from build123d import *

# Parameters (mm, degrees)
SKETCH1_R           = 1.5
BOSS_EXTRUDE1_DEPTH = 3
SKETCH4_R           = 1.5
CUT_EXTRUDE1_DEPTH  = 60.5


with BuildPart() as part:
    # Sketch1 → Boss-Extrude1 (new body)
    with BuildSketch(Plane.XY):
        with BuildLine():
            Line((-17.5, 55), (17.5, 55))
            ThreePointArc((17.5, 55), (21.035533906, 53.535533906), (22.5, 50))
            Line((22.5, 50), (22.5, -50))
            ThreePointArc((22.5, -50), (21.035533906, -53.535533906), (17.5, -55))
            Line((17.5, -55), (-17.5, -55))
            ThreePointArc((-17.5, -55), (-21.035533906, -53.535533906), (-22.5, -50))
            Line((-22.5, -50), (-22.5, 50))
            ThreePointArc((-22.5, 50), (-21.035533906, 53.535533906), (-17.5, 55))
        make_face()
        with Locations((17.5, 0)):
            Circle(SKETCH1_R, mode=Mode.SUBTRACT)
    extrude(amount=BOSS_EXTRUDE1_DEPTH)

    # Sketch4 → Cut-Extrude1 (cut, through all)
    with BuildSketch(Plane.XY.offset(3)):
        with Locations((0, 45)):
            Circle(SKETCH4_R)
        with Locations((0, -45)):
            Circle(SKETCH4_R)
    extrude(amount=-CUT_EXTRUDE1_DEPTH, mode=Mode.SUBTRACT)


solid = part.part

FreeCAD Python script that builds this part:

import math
import FreeCAD as App
import Part
import Sketcher
from FreeCAD import Vector

doc = App.newDocument("Part")
params = doc.addObject("Spreadsheet::Sheet", "Params")
for row, (alias, value) in enumerate([
    ("sketch1_diameter", "3 mm"),
    ("sketch1_radius", "5 mm"),
    ("sketch1_width", "35 mm"),
    ("sketch1_height", "100 mm"),
    ("pad1_length", "3 mm"),
    ("sketch2_diameter", "3 mm"),
], start=1):
    params.set(f"A{row}", alias)
    params.set(f"B{row}", "=" + value)
    params.setAlias(f"B{row}", alias)

body = doc.addObject("PartDesign::Body", "Body")

sketch1 = doc.addObject("Sketcher::SketchObject", "Sketch")
body.addObject(sketch1)
sketch1.AttachmentSupport = (doc.XY_Plane, [""])
sketch1.MapMode = "FlatFace"
sketch1.addGeometry([
    Part.LineSegment(Vector(17.5, 55, 0), Vector(-17.5, 55, 0)),
    Part.ArcOfCircle(Part.Circle(Vector(-17.5, 50, 0), Vector(0, 0, 1), 5), math.radians(90), math.radians(180)),
    Part.LineSegment(Vector(-22.5, 50, 0), Vector(-22.5, -50, 0)),
    Part.ArcOfCircle(Part.Circle(Vector(-17.5, -50, 0), Vector(0, 0, 1), 5), math.radians(180), math.radians(270)),
    Part.LineSegment(Vector(-17.5, -55, 0), Vector(17.5, -55, 0)),
    Part.ArcOfCircle(Part.Circle(Vector(17.5, -50, 0), Vector(0, 0, 1), 5), math.radians(-90), math.radians(0)),
    Part.LineSegment(Vector(22.5, -50, 0), Vector(22.5, 50, 0)),
    Part.ArcOfCircle(Part.Circle(Vector(17.5, 50, 0), Vector(0, 0, 1), 5), math.radians(0), math.radians(90)),
    Part.Circle(Vector(17.5, 0, 0), Vector(0, 0, 1), 1.5),
], False)
sketch1.addConstraint([
    Sketcher.Constraint("Tangent", 0, 2, 1, 1),
    Sketcher.Constraint("Tangent", 1, 2, 2, 1),
    Sketcher.Constraint("Tangent", 2, 2, 3, 1),
    Sketcher.Constraint("Tangent", 3, 2, 4, 1),
    Sketcher.Constraint("Tangent", 4, 2, 5, 1),
    Sketcher.Constraint("Tangent", 5, 2, 6, 1),
    Sketcher.Constraint("Tangent", 6, 2, 7, 1),
    Sketcher.Constraint("Tangent", 7, 2, 0, 1),
    Sketcher.Constraint("Horizontal", 0),
    Sketcher.Constraint("Vertical", 2),
    Sketcher.Constraint("Horizontal", 4),
    Sketcher.Constraint("Vertical", 6),
    Sketcher.Constraint("Equal", 1, 3),
    Sketcher.Constraint("Equal", 3, 5),
    Sketcher.Constraint("Equal", 5, 7),
    Sketcher.Constraint("Symmetric", 1, 3, 5, 3, -1, 1),
    Sketcher.Constraint("PointOnObject", 8, 3, -1),
    Sketcher.Constraint("Vertical", 7, 3, 8, 3),
    Sketcher.Constraint("Diameter", 8, 3.0),
    Sketcher.Constraint("Radius", 1, 5.0),
    Sketcher.Constraint("DistanceX", 0, 2, 0, 1, 35.0),
    Sketcher.Constraint("DistanceY", 2, 2, 2, 1, 100.0),
])
sketch1.setExpression("Constraints[18]", "Params.sketch1_diameter")
sketch1.setExpression("Constraints[19]", "Params.sketch1_radius")
sketch1.setExpression("Constraints[20]", "Params.sketch1_width")
sketch1.setExpression("Constraints[21]", "Params.sketch1_height")
pad1 = doc.addObject("PartDesign::Pad", "Pad")
body.addObject(pad1)
pad1.Profile = sketch1
pad1.setExpression("Length", "Params.pad1_length")

sketch2 = doc.addObject("Sketcher::SketchObject", "Sketch001")
body.addObject(sketch2)
sketch2.AttachmentSupport = (doc.XY_Plane, [""])
sketch2.MapMode = "FlatFace"
sketch2.AttachmentOffset = App.Placement(Vector(0, 0, 3), App.Rotation())
sketch2.addGeometry([
    Part.Circle(Vector(0, 45, 0), Vector(0, 0, 1), 1.5),
    Part.Circle(Vector(0, -45, 0), Vector(0, 0, 1), 1.5),
], False)
sketch2.addConstraint([
    Sketcher.Constraint("Equal", 0, 1),
    Sketcher.Constraint("Symmetric", 0, 3, 1, 3, -1, 1),
    Sketcher.Constraint("PointOnObject", 0, 3, -2),
    Sketcher.Constraint("Diameter", 0, 3.0),
    Sketcher.Constraint("DistanceY", -1, 1, 0, 3, 45.0),
])
sketch2.setExpression("Constraints[3]", "Params.sketch2_diameter")
pocket1 = doc.addObject("PartDesign::Pocket", "Pocket")
body.addObject(pocket1)
pocket1.Profile = sketch2
pocket1.Type = "ThroughAll"

doc.recompute()
